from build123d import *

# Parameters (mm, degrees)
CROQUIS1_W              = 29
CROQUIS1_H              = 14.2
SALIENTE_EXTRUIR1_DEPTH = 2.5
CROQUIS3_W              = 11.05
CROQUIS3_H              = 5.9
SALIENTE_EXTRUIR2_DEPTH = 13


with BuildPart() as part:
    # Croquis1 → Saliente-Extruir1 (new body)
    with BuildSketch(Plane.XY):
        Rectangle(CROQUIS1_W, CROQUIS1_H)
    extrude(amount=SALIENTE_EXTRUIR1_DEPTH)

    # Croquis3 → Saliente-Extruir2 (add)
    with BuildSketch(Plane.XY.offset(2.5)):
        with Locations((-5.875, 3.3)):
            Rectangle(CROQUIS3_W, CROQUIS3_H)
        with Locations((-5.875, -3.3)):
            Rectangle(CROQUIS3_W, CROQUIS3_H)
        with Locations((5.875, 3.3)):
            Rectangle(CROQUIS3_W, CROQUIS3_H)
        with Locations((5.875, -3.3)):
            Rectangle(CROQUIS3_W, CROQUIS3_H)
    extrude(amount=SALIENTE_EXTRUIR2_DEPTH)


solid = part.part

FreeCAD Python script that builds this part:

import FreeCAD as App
import Part
import Sketcher

V = App.Vector
Q = App.Units.Quantity


def add_polygon(sketch, points):
    """Adds a closed chain of lines whose ends are joined by coincident constraints."""
    first, n = sketch.GeometryCount, len(points)
    for a, b in zip(points, points[1:] + points[:1]):
        sketch.addGeometry(Part.LineSegment(App.Vector(*a, 0), App.Vector(*b, 0)), False)
    for i in range(n):
        sketch.addConstraint(Sketcher.Constraint("Coincident", first + i, 2, first + (i + 1) % n, 1))

doc = App.newDocument("Part")
body = doc.addObject("PartDesign::Body", "Body")

# Sketch on XY plane
sketch1 = doc.addObject("Sketcher::SketchObject", "Sketch")
body.addObject(sketch1)
sketch1.AttachmentSupport = (doc.XY_Plane, [""])
sketch1.MapMode = "FlatFace"
add_polygon(sketch1, [(-14, 7), (-14, -7), (14, -7), (14, 7)])  # lines 0-3
sketch1.addConstraint([
    Sketcher.Constraint("Vertical", 0),
    Sketcher.Constraint("Horizontal", 1),
    Sketcher.Constraint("Vertical", 2),
    Sketcher.Constraint("Horizontal", 3),
    Sketcher.Constraint("Symmetric", 0, 2, 2, 2, -1, 1),
    Sketcher.Constraint("DistanceX", 1, 1, 1, 2, Q("29 mm")),
    Sketcher.Constraint("DistanceY", 0, 2, 0, 1, Q("14.2 mm")),
])
pad1 = doc.addObject("PartDesign::Pad", "Pad")
body.addObject(pad1)
pad1.Profile = sketch1
pad1.Length = 2.5

# Sketch on XY plane
sketch2 = doc.addObject("Sketcher::SketchObject", "Sketch001")
body.addObject(sketch2)
sketch2.AttachmentSupport = (doc.XY_Plane, [""])
sketch2.MapMode = "FlatFace"
sketch2.AttachmentOffset = App.Placement(V(0, 0, 2.5), App.Rotation())
add_polygon(sketch2, [(-11.4, 6.25), (-11.4, 0.35), (-0.35, 0.35), (-0.35, 6.25)])  # lines 0-3
add_polygon(sketch2, [(-11.4, -0.35), (-11.4, -6.25), (-0.35, -6.25), (-0.35, -0.35)])  # lines 4-7
add_polygon(sketch2, [(0.35, 6.25), (0.35, 0.35), (11.4, 0.35), (11.4, 6.25)])  # lines 8-11
add_polygon(sketch2, [(0.35, -0.35), (0.35, -6.25), (11.4, -6.25), (11.4, -0.35)])  # lines 12-15
sketch2.addConstraint([
    Sketcher.Constraint("Vertical", 0),
    Sketcher.Constraint("Horizontal", 1),
    Sketcher.Constraint("Vertical", 2),
    Sketcher.Constraint("Horizontal", 3),
    Sketcher.Constraint("Vertical", 4),
    Sketcher.Constraint("Horizontal", 5),
    Sketcher.Constraint("Vertical", 6),
    Sketcher.Constraint("Horizontal", 7),
    Sketcher.Constraint("Vertical", 8),
    Sketcher.Constraint("Horizontal", 9),
    Sketcher.Constraint("Vertical", 10),
    Sketcher.Constraint("Horizontal", 11),
    Sketcher.Constraint("Vertical", 12),
    Sketcher.Constraint("Horizontal", 13),
    Sketcher.Constraint("Vertical", 14),
    Sketcher.Constraint("Horizontal", 15),
    Sketcher.Constraint("Symmetric", 6, 2, 8, 2, -1, 1),
    Sketcher.Constraint("Symmetric", 4, 2, 10, 2, -1, 1),
    Sketcher.Constraint("Symmetric", 2, 2, 12, 2, -1, 1),
    Sketcher.Constraint("Symmetric", 0, 2, 14, 2, -1, 1),
    Sketcher.Constraint("Symmetric", 1, 2, 8, 2, -2),
    Sketcher.Constraint("Symmetric", 3, 2, 10, 2, -2),
    Sketcher.Constraint("DistanceY", 0, 2, 0, 1, Q("5.9 mm")),
    Sketcher.Constraint("DistanceX", 1, 1, 1, 2, Q("11.05 mm")),
    Sketcher.Constraint("DistanceX", 0, 2, -1, 1, Q("11.4 mm")),
    Sketcher.Constraint("DistanceY", 4, 2, 0, 2, Q("6.6 mm")),
])
pad2 = doc.addObject("PartDesign::Pad", "Pad001")
body.addObject(pad2)
pad2.Profile = sketch2
pad2.Length = 13

doc.recompute()
